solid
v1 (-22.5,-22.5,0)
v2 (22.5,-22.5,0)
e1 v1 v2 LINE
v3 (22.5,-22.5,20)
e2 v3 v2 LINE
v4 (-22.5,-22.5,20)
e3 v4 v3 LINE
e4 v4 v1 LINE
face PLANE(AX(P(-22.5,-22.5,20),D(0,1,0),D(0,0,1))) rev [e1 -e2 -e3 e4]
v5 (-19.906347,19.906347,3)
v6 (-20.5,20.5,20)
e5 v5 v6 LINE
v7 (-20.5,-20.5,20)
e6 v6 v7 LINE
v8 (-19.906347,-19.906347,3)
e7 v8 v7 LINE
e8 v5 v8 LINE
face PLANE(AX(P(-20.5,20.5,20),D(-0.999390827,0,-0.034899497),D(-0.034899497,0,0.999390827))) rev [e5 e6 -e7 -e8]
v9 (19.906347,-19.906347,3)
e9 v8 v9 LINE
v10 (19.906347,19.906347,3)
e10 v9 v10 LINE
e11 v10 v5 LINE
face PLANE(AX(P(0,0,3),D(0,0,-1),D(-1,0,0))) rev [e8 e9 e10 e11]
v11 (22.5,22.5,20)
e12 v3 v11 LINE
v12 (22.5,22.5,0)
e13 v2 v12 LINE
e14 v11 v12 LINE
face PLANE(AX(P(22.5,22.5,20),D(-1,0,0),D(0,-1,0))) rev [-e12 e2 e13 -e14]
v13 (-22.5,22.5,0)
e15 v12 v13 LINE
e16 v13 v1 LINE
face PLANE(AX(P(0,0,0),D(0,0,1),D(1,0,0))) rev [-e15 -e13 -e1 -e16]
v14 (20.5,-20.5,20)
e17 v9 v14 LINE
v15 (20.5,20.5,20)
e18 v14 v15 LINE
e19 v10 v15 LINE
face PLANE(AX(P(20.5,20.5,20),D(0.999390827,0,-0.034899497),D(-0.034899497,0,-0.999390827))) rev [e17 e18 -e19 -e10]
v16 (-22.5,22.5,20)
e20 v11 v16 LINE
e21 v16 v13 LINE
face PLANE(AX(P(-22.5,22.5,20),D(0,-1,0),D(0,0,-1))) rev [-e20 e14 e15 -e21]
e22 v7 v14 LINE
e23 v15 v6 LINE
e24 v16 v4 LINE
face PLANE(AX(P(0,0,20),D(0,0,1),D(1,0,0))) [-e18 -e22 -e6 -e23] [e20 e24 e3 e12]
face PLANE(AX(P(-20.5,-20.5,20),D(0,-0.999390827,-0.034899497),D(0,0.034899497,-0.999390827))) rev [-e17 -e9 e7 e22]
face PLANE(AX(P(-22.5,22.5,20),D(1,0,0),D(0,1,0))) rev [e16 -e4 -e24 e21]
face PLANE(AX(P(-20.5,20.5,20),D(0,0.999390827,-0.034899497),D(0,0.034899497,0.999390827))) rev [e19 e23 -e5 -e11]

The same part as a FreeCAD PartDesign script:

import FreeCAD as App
import Part
import Sketcher
Q = App.Units.Quantity


def faces_at(feature, points):
    """Names of the faces that lie closest to the given points."""
    faces = feature.Shape.Faces
    near = lambda p: min(range(len(faces)), key=lambda i: faces[i].distToShape(Part.Vertex(*p))[0])
    return sorted({f"Face{near(p) + 1}" for p in points})


def add_polygon(sketch, points):
    """Adds a closed chain of lines whose ends are joined by coincident constraints."""
    first, n = sketch.GeometryCount, len(points)
    for a, b in zip(points, points[1:] + points[:1]):
        sketch.addGeometry(Part.LineSegment(App.Vector(*a, 0), App.Vector(*b, 0)), False)
    for i in range(n):
        sketch.addConstraint(Sketcher.Constraint("Coincident", first + i, 2, first + (i + 1) % n, 1))

doc = App.newDocument("Part")
params = doc.addObject("Spreadsheet::Sheet", "Params")
for row, (alias, value) in enumerate([
    ("sketch1_width", "45 mm"),
    ("pad1_length", "20 mm"),
    ("sketch2_width", "41 mm"),
    ("pad2_length", "17 mm"),
    ("draft_angle", "2 deg"),
], start=1):
    params.set(f"A{row}", alias)
    params.set(f"B{row}", "=" + value)
    params.setAlias(f"B{row}", alias)

body = doc.addObject("PartDesign::Body", "Body")

# Sketch on XY plane
sketch1 = body.newObject("Sketcher::SketchObject", "Sketch")
sketch1.AttachmentSupport = (doc.getObject("XY_Plane"), [""])
sketch1.MapMode = "FlatFace"
add_polygon(sketch1, [(-22.5, 22.5), (-22.5, -22.5), (22.5, -22.5), (22.5, 22.5)])  # lines 0-3
sketch1.addConstraint(Sketcher.Constraint("Vertical", 0))
sketch1.addConstraint(Sketcher.Constraint("Horizontal", 1))
sketch1.addConstraint(Sketcher.Constraint("Vertical", 2))
sketch1.addConstraint(Sketcher.Constraint("Horizontal", 3))
sketch1.addConstraint(Sketcher.Constraint("Symmetric", 0, 2, 2, 2, -1, 1))
sketch1.addConstraint(Sketcher.Constraint("Equal", 3, 0))
sketch1.addConstraint(Sketcher.Constraint("DistanceX", 1, 1, 1, 2, Q("45 mm")))
sketch1.setExpression("Constraints[10]", "Params.sketch1_width")
pad1 = body.newObject("PartDesign::Pad", "Pad")
pad1.Profile = sketch1
pad1.setExpression("Length", "Params.pad1_length")
body2 = doc.addObject("PartDesign::Body", "Body001")

# Sketch on XY plane
sketch2 = body2.newObject("Sketcher::SketchObject", "Sketch001")
sketch2.AttachmentSupport = (doc.getObject("XY_Plane001"), [""])
sketch2.MapMode = "FlatFace"
sketch2.AttachmentOffset = App.Placement(App.Vector(0, 0, 20), App.Rotation())
add_polygon(sketch2, [(-20.5, 20.5), (-20.5, -20.5), (20.5, -20.5), (20.5, 20.5)])  # lines 0-3
sketch2.addConstraint(Sketcher.Constraint("Vertical", 0))
sketch2.addConstraint(Sketcher.Constraint("Horizontal", 1))
sketch2.addConstraint(Sketcher.Constraint("Vertical", 2))
sketch2.addConstraint(Sketcher.Constraint("Horizontal", 3))
sketch2.addConstraint(Sketcher.Constraint("Symmetric", 0, 2, 2, 2, -1, 1))
sketch2.addConstraint(Sketcher.Constraint("Equal", 3, 0))
sketch2.addConstraint(Sketcher.Constraint("DistanceX", 1, 1, 1, 2, Q("41 mm")))
sketch2.setExpression("Constraints[10]", "Params.sketch2_width")
pad2 = body2.newObject("PartDesign::Pad", "Pad001")
pad2.Profile = sketch2
pad2.setExpression("Length", "Params.pad2_length")
pad2.Reversed = True
doc.recompute()

datumplane = body2.newObject("PartDesign::Plane", "DatumPlane")
datumplane.AttachmentSupport = (doc.getObject("XY_Plane001"), [""])
datumplane.MapMode = "FlatFace"
datumplane.AttachmentOffset = App.Placement(App.Vector(0, 0, 20), App.Rotation())
draft = body2.newObject("PartDesign::Draft", "Draft")
draft.Base = (pad2, faces_at(pad2, [
    (-20.5, 0, 11.5),
    (0, -20.5, 11.5),
    (20.5, 0, 11.5),
    (0, 20.5, 11.5),
]))
draft.NeutralPlane = (datumplane, [""])
draft.setExpression("Angle", "Params.draft_angle")
draft.Reversed = True
doc.recompute()

boolean = body.newObject("PartDesign::Boolean", "Boolean")
boolean.Type = "Cut"
boolean.addObjects([body2])

doc.recompute()
